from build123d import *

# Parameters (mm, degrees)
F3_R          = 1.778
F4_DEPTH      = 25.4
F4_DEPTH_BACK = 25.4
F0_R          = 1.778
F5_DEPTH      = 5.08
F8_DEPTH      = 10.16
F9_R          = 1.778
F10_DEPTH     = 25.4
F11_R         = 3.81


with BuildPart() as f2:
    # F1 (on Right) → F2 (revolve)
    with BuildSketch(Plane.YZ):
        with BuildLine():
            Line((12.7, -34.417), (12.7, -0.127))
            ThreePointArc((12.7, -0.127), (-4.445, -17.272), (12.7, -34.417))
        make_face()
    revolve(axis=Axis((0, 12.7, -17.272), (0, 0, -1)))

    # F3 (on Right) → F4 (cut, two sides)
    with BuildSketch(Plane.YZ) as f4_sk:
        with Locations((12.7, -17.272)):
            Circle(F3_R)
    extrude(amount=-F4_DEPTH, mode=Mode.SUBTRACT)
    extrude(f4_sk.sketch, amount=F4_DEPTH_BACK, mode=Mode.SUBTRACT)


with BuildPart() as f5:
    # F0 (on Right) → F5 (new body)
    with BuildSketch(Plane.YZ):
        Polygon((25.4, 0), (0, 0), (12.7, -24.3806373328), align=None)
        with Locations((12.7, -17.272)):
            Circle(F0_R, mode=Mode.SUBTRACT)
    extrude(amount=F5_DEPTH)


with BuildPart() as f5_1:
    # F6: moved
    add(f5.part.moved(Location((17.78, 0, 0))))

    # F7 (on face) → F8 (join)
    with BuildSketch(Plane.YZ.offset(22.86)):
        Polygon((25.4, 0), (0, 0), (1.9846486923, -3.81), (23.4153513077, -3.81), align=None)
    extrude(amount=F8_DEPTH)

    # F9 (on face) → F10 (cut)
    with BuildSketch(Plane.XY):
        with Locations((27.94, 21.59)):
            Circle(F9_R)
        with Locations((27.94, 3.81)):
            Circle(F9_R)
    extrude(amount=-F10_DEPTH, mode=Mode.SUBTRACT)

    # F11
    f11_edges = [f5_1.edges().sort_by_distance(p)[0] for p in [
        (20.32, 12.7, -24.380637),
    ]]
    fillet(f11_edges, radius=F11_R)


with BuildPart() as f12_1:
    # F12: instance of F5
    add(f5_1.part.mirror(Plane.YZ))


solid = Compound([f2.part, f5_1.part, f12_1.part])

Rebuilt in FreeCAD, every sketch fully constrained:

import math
import FreeCAD as App
import Part
import Sketcher
Q = App.Units.Quantity


def edges_at(feature, points):
    """Names of the edges that pass closest to the given points."""
    edges = feature.Shape.Edges
    near = lambda p: min(range(len(edges)), key=lambda i: edges[i].distToShape(Part.Vertex(*p))[0])
    return sorted({f"Edge{near(p) + 1}" for p in points})

doc = App.newDocument("Part")
body = doc.addObject("PartDesign::Body", "Body")

sketch1 = body.newObject("Sketcher::SketchObject", "Sketch")
sketch1.AttachmentSupport = (doc.getObject("YZ_Plane"), [""])
sketch1.MapMode = "FlatFace"
sketch1.addGeometry([
    Part.LineSegment(App.Vector(13, -34, 0), App.Vector(13, 0, 0)),
    Part.ArcOfCircle(Part.Circle(App.Vector(13, -17, 0), App.Vector(0, 0, 1), 17), math.radians(90), math.radians(270)),
], False)
sketch1.addGeometry(Part.LineSegment(App.Vector(13, 0, 0), App.Vector(13, -34, 0)), True)
sketch1.addConstraint([
    Sketcher.Constraint("Coincident", 0, 1, 1, 2),
    Sketcher.Constraint("Coincident", 1, 1, 0, 2),
    Sketcher.Constraint("Vertical", 0),
    Sketcher.Constraint("Vertical", 2),
    Sketcher.Constraint("Coincident", 2, 1, 1, 1),
    Sketcher.Constraint("Vertical", 1, 3, 0, 1),
    Sketcher.Constraint("Equal", 0, 2),
    Sketcher.Constraint("Radius", 1, Q("0.675 in")),
    Sketcher.Constraint("DistanceX", -1, 1, 1, 3, Q("0.5 in")),
    Sketcher.Constraint("DistanceY", 1, 3, -1, 1, Q("0.68 in")),
])
revolution = body.newObject("PartDesign::Revolution", "Revolution")
revolution.Profile = sketch1
revolution.ReferenceAxis = (sketch1, ["Axis0"])
revolution.Angle = 360

sketch2 = body.newObject("Sketcher::SketchObject", "Sketch001")
sketch2.AttachmentSupport = (doc.getObject("YZ_Plane"), [""])
sketch2.MapMode = "FlatFace"
sketch2.addGeometry(Part.Circle(App.Vector(12.7, -17.3, 0), App.Vector(0, 0, 1), 1.8), False)
sketch2.addConstraint([
    Sketcher.Constraint("Diameter", 0, Q("0.14 in")),
    Sketcher.Constraint("DistanceX", -1, 1, 0, 3, Q("0.5 in")),
    Sketcher.Constraint("DistanceY", 0, 3, -1, 1, Q("0.68 in")),
])
pocket1 = body.newObject("PartDesign::Pocket", "Pocket")
pocket1.Profile = sketch2
pocket1.Type = "ThroughAll"
pocket1.Midplane = True
body2 = doc.addObject("PartDesign::Body", "Body001")

sketch3 = body2.newObject("Sketcher::SketchObject", "Sketch002")
sketch3.AttachmentSupport = (doc.getObject("YZ_Plane001"), [""])
sketch3.MapMode = "FlatFace"
sketch3.addGeometry([
    Part.LineSegment(App.Vector(25.4, 0, 0), App.Vector(0, 0, 0)),
    Part.LineSegment(App.Vector(0, 0, 0), App.Vector(12.7, -24.4, 0)),
    Part.LineSegment(App.Vector(12.7, -24.4, 0), App.Vector(25.4, 0, 0)),
    Part.Circle(App.Vector(12.7, -17.3, 0), App.Vector(0, 0, 1), 1.8),
], False)
sketch3.addConstraint([
    Sketcher.Constraint("Coincident", 0, 2, 1, 1),
    Sketcher.Constraint("Coincident", 1, 2, 2, 1),
    Sketcher.Constraint("Coincident", 2, 2, 0, 1),
    Sketcher.Constraint("Horizontal", 0),
    Sketcher.Constraint("Coincident", 0, 2, -1, 1),
    Sketcher.Constraint("Vertical", 3, 3, 1, 2),
    Sketcher.Constraint("Equal", 1, 2),
    Sketcher.Constraint("Diameter", 3, Q("0.14 in")),
    Sketcher.Constraint("DistanceX", 0, 2, 0, 1, Q("1 in")),
    Sketcher.Constraint("DistanceY", 3, 3, -1, 1, Q("0.68 in")),
    Sketcher.Constraint("Distance", 1, 27.490098),
])
pad1 = body2.newObject("PartDesign::Pad", "Pad")
pad1.Profile = sketch3
pad1.Length = Q("0.2 in")
body3 = doc.addObject("PartDesign::Body", "Body002")
doc.recompute()

body2.Placement = App.Placement(App.Vector(17.78, 0, 0), App.Rotation(App.Vector(0, 0, 1), 0))
boolean = body3.newObject("PartDesign::Boolean", "Boolean")
boolean.Type = "Fuse"
boolean.addObjects([body2])

sketch4 = body3.newObject("Sketcher::SketchObject", "Sketch003")
sketch4.AttachmentSupport = (doc.getObject("YZ_Plane002"), [""])
sketch4.MapMode = "FlatFace"
sketch4.AttachmentOffset = App.Placement(App.Vector(0, 0, 0.9 * 25.4), App.Rotation())
sketch4.addGeometry([
    Part.LineSegment(App.Vector(25.4, 0, 0), App.Vector(0, 0, 0)),
    Part.LineSegment(App.Vector(0, 0, 0), App.Vector(2, -3.8, 0)),
    Part.LineSegment(App.Vector(2, -3.8, 0), App.Vector(23.4, -3.8, 0)),
    Part.LineSegment(App.Vector(23.4, -3.8, 0), App.Vector(25.4, 0, 0)),
], False)
sketch4.addConstraint([
    Sketcher.Constraint("Coincident", 0, 2, 1, 1),
    Sketcher.Constraint("Coincident", 1, 2, 2, 1),
    Sketcher.Constraint("Coincident", 2, 2, 3, 1),
    Sketcher.Constraint("Coincident", 3, 2, 0, 1),
    Sketcher.Constraint("Horizontal", 0),
    Sketcher.Constraint("Horizontal", 2),
    Sketcher.Constraint("Coincident", 0, 2, -1, 1),
    Sketcher.Constraint("Equal", 1, 3),
    Sketcher.Constraint("DistanceX", 0, 2, 0, 1, Q("1 in")),
    Sketcher.Constraint("DistanceY", 1, 2, -1, 1, Q("0.15 in")),
    Sketcher.Constraint("Distance", 1, 4.29592),
])
pad2 = body3.newObject("PartDesign::Pad", "Pad001")
pad2.Profile = sketch4
pad2.Length = Q("0.4 in")

sketch5 = body3.newObject("Sketcher::SketchObject", "Sketch004")
sketch5.AttachmentSupport = (doc.getObject("XY_Plane002"), [""])
sketch5.MapMode = "FlatFace"
sketch5.addGeometry([
    Part.Circle(App.Vector(27.9, 21.6, 0), App.Vector(0, 0, 1), 1.8),
    Part.Circle(App.Vector(27.9, 3.8, 0), App.Vector(0, 0, 1), 1.8),
], False)
sketch5.addConstraint([
    Sketcher.Constraint("Equal", 0, 1),
    Sketcher.Constraint("Vertical", 0, 3, 1, 3),
    Sketcher.Constraint("Diameter", 0, Q("0.14 in")),
    Sketcher.Constraint("DistanceX", -1, 1, 0, 3, Q("1.1 in")),
    Sketcher.Constraint("DistanceY", 1, 3, 0, 3, Q("0.7 in")),
    Sketcher.Constraint("DistanceY", -1, 1, 0, 3, Q("0.85 in")),
])
pocket2 = body3.newObject("PartDesign::Pocket", "Pocket001")
pocket2.Profile = sketch5
pocket2.Length = Q("1 in")
doc.recompute()

fillet = body3.newObject("PartDesign::Fillet", "Fillet")
fillet.Base = (pocket2, edges_at(pocket2, [(20.32, 12.7, -24.381)]))
fillet.Radius = Q("0.15 in")
body4 = doc.addObject("PartDesign::Body", "Body003")
doc.recompute()

mirroring = doc.addObject("Part::Mirroring", "Mirroring")
mirroring.Source = body3
mirroring.Base = App.Vector(0, 0, 0)
mirroring.Normal = App.Vector(1, 0, 0)
body4.BaseFeature = mirroring
doc.recompute()
mirroring.Visibility = False

doc.recompute()
